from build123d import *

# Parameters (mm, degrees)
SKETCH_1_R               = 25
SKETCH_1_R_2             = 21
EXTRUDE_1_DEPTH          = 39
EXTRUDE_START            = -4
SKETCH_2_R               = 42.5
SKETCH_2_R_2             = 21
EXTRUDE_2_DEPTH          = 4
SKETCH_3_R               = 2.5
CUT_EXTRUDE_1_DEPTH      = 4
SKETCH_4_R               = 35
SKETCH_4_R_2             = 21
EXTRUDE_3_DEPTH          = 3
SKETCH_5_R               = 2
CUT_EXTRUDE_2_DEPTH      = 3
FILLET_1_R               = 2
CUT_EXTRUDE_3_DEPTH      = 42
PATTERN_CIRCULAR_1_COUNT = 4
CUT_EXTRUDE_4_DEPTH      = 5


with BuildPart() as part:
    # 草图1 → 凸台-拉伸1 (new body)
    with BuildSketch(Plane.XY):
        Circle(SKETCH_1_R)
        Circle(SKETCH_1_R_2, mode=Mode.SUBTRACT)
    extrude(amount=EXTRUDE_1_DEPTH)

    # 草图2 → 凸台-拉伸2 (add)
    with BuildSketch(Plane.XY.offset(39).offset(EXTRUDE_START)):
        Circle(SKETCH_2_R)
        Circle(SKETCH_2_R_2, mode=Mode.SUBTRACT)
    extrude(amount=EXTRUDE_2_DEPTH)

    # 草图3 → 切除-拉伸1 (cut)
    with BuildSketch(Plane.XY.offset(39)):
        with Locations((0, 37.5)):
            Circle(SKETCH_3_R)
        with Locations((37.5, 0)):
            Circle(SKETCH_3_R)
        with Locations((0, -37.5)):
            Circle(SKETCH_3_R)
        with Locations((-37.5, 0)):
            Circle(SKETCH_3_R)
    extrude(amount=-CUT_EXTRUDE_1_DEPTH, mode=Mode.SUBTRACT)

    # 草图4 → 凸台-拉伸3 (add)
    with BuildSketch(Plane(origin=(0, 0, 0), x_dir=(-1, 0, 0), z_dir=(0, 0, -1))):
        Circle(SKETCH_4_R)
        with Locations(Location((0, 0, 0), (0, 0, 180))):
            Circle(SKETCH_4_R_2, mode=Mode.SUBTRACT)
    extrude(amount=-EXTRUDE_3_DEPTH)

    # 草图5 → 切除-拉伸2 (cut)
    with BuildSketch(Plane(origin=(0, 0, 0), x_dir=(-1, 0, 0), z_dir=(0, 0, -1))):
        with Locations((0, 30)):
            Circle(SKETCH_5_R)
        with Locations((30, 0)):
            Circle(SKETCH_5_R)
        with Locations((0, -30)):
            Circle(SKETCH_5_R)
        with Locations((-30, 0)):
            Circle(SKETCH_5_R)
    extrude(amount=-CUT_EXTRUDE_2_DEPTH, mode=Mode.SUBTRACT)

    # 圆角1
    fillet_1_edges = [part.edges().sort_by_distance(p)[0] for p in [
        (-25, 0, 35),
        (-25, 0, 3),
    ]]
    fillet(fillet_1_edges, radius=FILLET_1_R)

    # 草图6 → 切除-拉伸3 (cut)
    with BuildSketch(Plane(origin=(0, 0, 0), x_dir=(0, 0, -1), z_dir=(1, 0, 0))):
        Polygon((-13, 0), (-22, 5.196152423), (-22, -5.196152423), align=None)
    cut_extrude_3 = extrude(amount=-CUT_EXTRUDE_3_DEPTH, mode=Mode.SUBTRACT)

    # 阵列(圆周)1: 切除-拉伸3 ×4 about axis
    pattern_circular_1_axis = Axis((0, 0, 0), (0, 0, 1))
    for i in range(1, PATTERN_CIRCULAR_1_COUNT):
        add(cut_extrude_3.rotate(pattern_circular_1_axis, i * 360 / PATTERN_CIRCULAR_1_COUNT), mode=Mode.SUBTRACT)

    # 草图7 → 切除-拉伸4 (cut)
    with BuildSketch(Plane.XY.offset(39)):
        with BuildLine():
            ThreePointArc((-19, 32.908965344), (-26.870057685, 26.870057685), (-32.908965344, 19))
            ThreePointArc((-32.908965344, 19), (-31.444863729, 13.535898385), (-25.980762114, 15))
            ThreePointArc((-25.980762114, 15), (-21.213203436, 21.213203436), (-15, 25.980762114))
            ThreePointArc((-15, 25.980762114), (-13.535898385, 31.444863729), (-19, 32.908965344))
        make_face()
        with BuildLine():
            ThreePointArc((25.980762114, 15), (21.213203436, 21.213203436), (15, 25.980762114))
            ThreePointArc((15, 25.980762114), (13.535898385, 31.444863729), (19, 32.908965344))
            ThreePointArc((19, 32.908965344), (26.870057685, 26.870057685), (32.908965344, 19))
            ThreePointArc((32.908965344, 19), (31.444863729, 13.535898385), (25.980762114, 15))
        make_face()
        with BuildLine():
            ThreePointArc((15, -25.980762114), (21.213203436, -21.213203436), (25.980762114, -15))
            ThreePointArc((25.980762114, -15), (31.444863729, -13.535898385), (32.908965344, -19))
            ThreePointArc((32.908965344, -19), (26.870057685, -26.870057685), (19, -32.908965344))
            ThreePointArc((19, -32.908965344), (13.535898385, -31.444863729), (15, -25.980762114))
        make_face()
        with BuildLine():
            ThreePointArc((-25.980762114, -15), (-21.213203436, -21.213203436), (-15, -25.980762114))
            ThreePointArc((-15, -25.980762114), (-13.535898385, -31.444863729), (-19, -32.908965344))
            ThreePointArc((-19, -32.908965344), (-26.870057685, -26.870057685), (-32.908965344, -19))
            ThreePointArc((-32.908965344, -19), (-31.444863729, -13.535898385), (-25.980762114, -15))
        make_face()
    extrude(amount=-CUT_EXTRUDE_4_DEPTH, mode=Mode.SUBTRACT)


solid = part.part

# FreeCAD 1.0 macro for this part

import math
import FreeCAD as App
import Part
import Sketcher
from FreeCAD import Vector
Q = App.Units.Quantity


def edges_at(feature, points):
    """Names of the edges that pass closest to the given points."""
    edges = feature.Shape.Edges
    near = lambda p: min(range(len(edges)), key=lambda i: edges[i].distToShape(Part.Vertex(*p))[0])
    return sorted({f"Edge{near(p) + 1}" for p in points})


def add_polygon(sketch, points):
    """Adds a closed chain of lines whose ends are joined by coincident constraints."""
    first, n = sketch.GeometryCount, len(points)
    for a, b in zip(points, points[1:] + points[:1]):
        sketch.addGeometry(Part.LineSegment(App.Vector(*a, 0), App.Vector(*b, 0)), False)
    for i in range(n):
        sketch.addConstraint(Sketcher.Constraint("Coincident", first + i, 2, first + (i + 1) % n, 1))

doc = App.newDocument("Part")
body = doc.addObject("PartDesign::Body", "Body")

sketch1 = body.newObject("Sketcher::SketchObject", "Sketch")
sketch1.AttachmentSupport = (doc.getObject("XY_Plane"), [""])
sketch1.MapMode = "FlatFace"
sketch1.addGeometry([
    Part.Circle(Vector(0, 0, 0), Vector(0, 0, 1), 25),
    Part.Circle(Vector(0, 0, 0), Vector(0, 0, 1), 21),
], False)
sketch1.addConstraint([
    Sketcher.Constraint("Coincident", 0, 3, -1, 1),
    Sketcher.Constraint("Coincident", 1, 3, -1, 1),
    Sketcher.Constraint("Diameter", 0, Q("50 mm")),
    Sketcher.Constraint("Diameter", 1, Q("42 mm")),
])
pad1 = body.newObject("PartDesign::Pad", "Pad")
pad1.Profile = sketch1
pad1.Length = 39

sketch2 = body.newObject("Sketcher::SketchObject", "Sketch001")
sketch2.AttachmentSupport = (doc.getObject("XY_Plane"), [""])
sketch2.MapMode = "FlatFace"
sketch2.AttachmentOffset = App.Placement(Vector(0, 0, 35), App.Rotation())
sketch2.addGeometry([
    Part.Circle(Vector(0, 0, 0), Vector(0, 0, 1), 42),
    Part.Circle(Vector(0, 0, 0), Vector(0, 0, 1), 21),
], False)
sketch2.addConstraint([
    Sketcher.Constraint("Coincident", 0, 3, -1, 1),
    Sketcher.Constraint("Coincident", 1, 3, -1, 1),
    Sketcher.Constraint("Diameter", 0, Q("85 mm")),
    Sketcher.Constraint("Diameter", 1, Q("42 mm")),
])
pad2 = body.newObject("PartDesign::Pad", "Pad001")
pad2.Profile = sketch2
pad2.Length = 4

sketch3 = body.newObject("Sketcher::SketchObject", "Sketch002")
sketch3.AttachmentSupport = (doc.getObject("XY_Plane"), [""])
sketch3.MapMode = "FlatFace"
sketch3.AttachmentOffset = App.Placement(Vector(0, 0, 39), App.Rotation())
sketch3.addGeometry([
    Part.Circle(Vector(0, 37.5, 0), Vector(0, 0, 1), 2.5),
    Part.Circle(Vector(37.5, 0, 0), Vector(0, 0, 1), 2.5),
    Part.Circle(Vector(0, -37.5, 0), Vector(0, 0, 1), 2.5),
    Part.Circle(Vector(-37.5, 0, 0), Vector(0, 0, 1), 2.5),
], False)
sketch3.addConstraint([
    Sketcher.Constraint("Equal", 0, 1),
    Sketcher.Constraint("Equal", 1, 2),
    Sketcher.Constraint("Equal", 2, 3),
    Sketcher.Constraint("Symmetric", 0, 3, 2, 3, -1, 1),
    Sketcher.Constraint("Symmetric", 1, 3, 3, 3, -1, 1),
    Sketcher.Constraint("PointOnObject", 0, 3, -2),
    Sketcher.Constraint("PointOnObject", 1, 3, -1),
    Sketcher.Constraint("Diameter", 0, Q("5 mm")),
    Sketcher.Constraint("DistanceY", 2, 3, 0, 3, Q("75 mm")),
    Sketcher.Constraint("DistanceX", 3, 3, 1, 3, Q("75 mm")),
])
pocket1 = body.newObject("PartDesign::Pocket", "Pocket")
pocket1.Profile = sketch3
pocket1.Length = 4

sketch4 = body.newObject("Sketcher::SketchObject", "Sketch003")
sketch4.AttachmentSupport = (doc.getObject("XY_Plane"), [""])
sketch4.MapMode = "FlatFace"
sketch4.addGeometry([
    Part.Circle(Vector(0, 0, 0), Vector(0, 0, 1), 35),
    Part.Circle(Vector(0, 0, 0), Vector(0, 0, 1), 21),
], False)
sketch4.addConstraint([
    Sketcher.Constraint("Coincident", 0, 3, -1, 1),
    Sketcher.Constraint("Coincident", 1, 3, -1, 1),
    Sketcher.Constraint("Diameter", 0, Q("70 mm")),
    Sketcher.Constraint("Diameter", 1, Q("42 mm")),
])
pad3 = body.newObject("PartDesign::Pad", "Pad002")
pad3.Profile = sketch4
pad3.Length = 3

sketch5 = body.newObject("Sketcher::SketchObject", "Sketch004")
sketch5.AttachmentSupport = (doc.getObject("XY_Plane"), [""])
sketch5.MapMode = "FlatFace"
sketch5.addGeometry([
    Part.Circle(Vector(0, 30, 0), Vector(0, 0, 1), 2),
    Part.Circle(Vector(-30, 0, 0), Vector(0, 0, 1), 2),
    Part.Circle(Vector(0, -30, 0), Vector(0, 0, 1), 2),
    Part.Circle(Vector(30, 0, 0), Vector(0, 0, 1), 2),
], False)
sketch5.addConstraint([
    Sketcher.Constraint("Equal", 0, 1),
    Sketcher.Constraint("Equal", 1, 2),
    Sketcher.Constraint("Equal", 2, 3),
    Sketcher.Constraint("Symmetric", 0, 3, 2, 3, -1, 1),
    Sketcher.Constraint("Symmetric", 1, 3, 3, 3, -1, 1),
    Sketcher.Constraint("PointOnObject", 0, 3, -2),
    Sketcher.Constraint("PointOnObject", 1, 3, -1),
    Sketcher.Constraint("Diameter", 0, Q("4 mm")),
    Sketcher.Constraint("DistanceY", -1, 1, 0, 3, Q("30 mm")),
    Sketcher.Constraint("DistanceX", 1, 3, -1, 1, Q("30 mm")),
])
pocket2 = body.newObject("PartDesign::Pocket", "Pocket001")
pocket2.Profile = sketch5
pocket2.Length = 3
pocket2.Reversed = True
doc.recompute()

fillet = body.newObject("PartDesign::Fillet", "Fillet")
fillet.Base = (pocket2, edges_at(pocket2, [(-25, 0, 35), (-25, 0, 3)]))
fillet.Radius = 2

sketch6 = body.newObject("Sketcher::SketchObject", "Sketch005")
sketch6.AttachmentSupport = (doc.getObject("YZ_Plane"), [""])
sketch6.MapMode = "FlatFace"
add_polygon(sketch6, [(0, 13), (5, 22), (-5, 22)])
sketch6.addConstraint([
    Sketcher.Constraint("Horizontal", 1),
    Sketcher.Constraint("PointOnObject", 2, 2, -2),
    Sketcher.Constraint("Equal", 0, 2),
    Sketcher.Constraint("Angle", 0, Q("60 deg")),
    Sketcher.Constraint("DistanceY", -1, 1, 0, 2, Q("22 mm")),
    Sketcher.Constraint("DistanceY", -1, 1, 2, 2, Q("13 mm")),
])
pocket3 = body.newObject("PartDesign::Pocket", "Pocket002")
pocket3.Profile = sketch6
pocket3.Length = 42
doc.recompute()

polarpattern = body.newObject("PartDesign::PolarPattern", "PolarPattern")
polarpattern.Originals = [pocket3]
polarpattern.Axis = (doc.getObject("Z_Axis"), [""])
polarpattern.Angle = 360
polarpattern.Occurrences = 4
body.Tip = polarpattern

sketch7 = body.newObject("Sketcher::SketchObject", "Sketch006")
sketch7.AttachmentSupport = (doc.getObject("XY_Plane"), [""])
sketch7.MapMode = "FlatFace"
sketch7.AttachmentOffset = App.Placement(Vector(0, 0, 39), App.Rotation())
sketch7.addGeometry([
    Part.ArcOfCircle(Part.Circle(Vector(0, 0, 0), Vector(0, 0, 1), 38), math.radians(120), math.radians(150)),
    Part.ArcOfCircle(Part.Circle(Vector(-29.4, 17, 0), Vector(0, 0, 1), 4), math.radians(150), math.radians(330)),
    Part.ArcOfCircle(Part.Circle(Vector(0, 0, 0), Vector(0, 0, 1), 30), math.radians(120), math.radians(150)),
    Part.ArcOfCircle(Part.Circle(Vector(-17, 29.4, 0), Vector(0, 0, 1), 4), math.radians(-60), math.radians(120)),
    Part.ArcOfCircle(Part.Circle(Vector(0, 0, 0), Vector(0, 0, 1), 30), math.radians(30), math.radians(60)),
    Part.ArcOfCircle(Part.Circle(Vector(29.4, 17, 0), Vector(0, 0, 1), 4), math.radians(-150), math.radians(30)),
    Part.ArcOfCircle(Part.Circle(Vector(0, 0, 0), Vector(0, 0, 1), 38), math.radians(30), math.radians(60)),
    Part.ArcOfCircle(Part.Circle(Vector(17, 29.4, 0), Vector(0, 0, 1), 4), math.radians(60), math.radians(240)),
    Part.ArcOfCircle(Part.Circle(Vector(0, 0, 0), Vector(0, 0, 1), 30), math.radians(-60), math.radians(-30)),
    Part.ArcOfCircle(Part.Circle(Vector(17, -29.4, 0), Vector(0, 0, 1), 4), math.radians(120), math.radians(300)),
    Part.ArcOfCircle(Part.Circle(Vector(0, 0, 0), Vector(0, 0, 1), 38), math.radians(-60), math.radians(-30)),
    Part.ArcOfCircle(Part.Circle(Vector(29.4, -17, 0), Vector(0, 0, 1), 4), math.radians(-30), math.radians(150)),
    Part.ArcOfCircle(Part.Circle(Vector(0, 0, 0), Vector(0, 0, 1), 30), math.radians(-150), math.radians(-120)),
    Part.ArcOfCircle(Part.Circle(Vector(-29.4, -17, 0), Vector(0, 0, 1), 4), math.radians(30), math.radians(210)),
    Part.ArcOfCircle(Part.Circle(Vector(0, 0, 0), Vector(0, 0, 1), 38), math.radians(-150), math.radians(-120)),
    Part.ArcOfCircle(Part.Circle(Vector(-17, -29.4, 0), Vector(0, 0, 1), 4), math.radians(-120), math.radians(60)),
], False)
sketch7.addConstraint([
    Sketcher.Constraint("Tangent", 0, 2, 1, 1),
    Sketcher.Constraint("Tangent", 1, 2, 2, 2),
    Sketcher.Constraint("Tangent", 2, 1, 3, 1),
    Sketcher.Constraint("Tangent", 3, 2, 0, 1),
    Sketcher.Constraint("Tangent", 4, 1, 5, 1),
    Sketcher.Constraint("Tangent", 5, 2, 6, 1),
    Sketcher.Constraint("Tangent", 6, 2, 7, 1),
    Sketcher.Constraint("Tangent", 7, 2, 4, 2),
    Sketcher.Constraint("Tangent", 8, 1, 9, 1),
    Sketcher.Constraint("Tangent", 9, 2, 10, 1),
    Sketcher.Constraint("Tangent", 10, 2, 11, 1),
    Sketcher.Constraint("Tangent", 11, 2, 8, 2),
    Sketcher.Constraint("Tangent", 12, 1, 13, 1),
    Sketcher.Constraint("Tangent", 13, 2, 14, 1),
    Sketcher.Constraint("Tangent", 14, 2, 15, 1),
    Sketcher.Constraint("Tangent", 15, 2, 12, 2),
    Sketcher.Constraint("Coincident", 0, 3, -1, 1),
    Sketcher.Constraint("Coincident", 2, 3, -1, 1),
    Sketcher.Constraint("Coincident", 4, 3, -1, 1),
    Sketcher.Constraint("Coincident", 6, 3, -1, 1),
    Sketcher.Constraint("Coincident", 8, 3, -1, 1),
    Sketcher.Constraint("Coincident", 10, 3, -1, 1),
    Sketcher.Constraint("Coincident", 12, 3, -1, 1),
    Sketcher.Constraint("Coincident", 14, 3, -1, 1),
    Sketcher.Constraint("Equal", 2, 4),
    Sketcher.Constraint("Equal", 3, 5),
    Sketcher.Constraint("Equal", 4, 8),
    Sketcher.Constraint("Equal", 7, 9),
    Sketcher.Constraint("Equal", 8, 12),
    Sketcher.Constraint("Equal", 11, 13),
    Sketcher.Constraint("Horizontal", 1, 3, 5, 3),
    Sketcher.Constraint("Horizontal", 3, 3, 7, 3),
    Sketcher.Constraint("Horizontal", 11, 3, 13, 3),
    Sketcher.Constraint("Horizontal", 9, 3, 15, 3),
    Sketcher.Constraint("Vertical", 7, 3, 9, 3),
    Sketcher.Constraint("Vertical", 5, 3, 11, 3),
    Sketcher.Constraint("Radius", 0, Q("38 mm")),
    Sketcher.Constraint("Radius", 1, Q("4 mm")),
    Sketcher.Constraint("DistanceY", -1, 1, 1, 3, Q("17 mm")),
    Sketcher.Constraint("DistanceX", 3, 3, -1, 1, Q("17 mm")),
])
pocket4 = body.newObject("PartDesign::Pocket", "Pocket003")
pocket4.Profile = sketch7
pocket4.Length = 5

doc.recompute()
